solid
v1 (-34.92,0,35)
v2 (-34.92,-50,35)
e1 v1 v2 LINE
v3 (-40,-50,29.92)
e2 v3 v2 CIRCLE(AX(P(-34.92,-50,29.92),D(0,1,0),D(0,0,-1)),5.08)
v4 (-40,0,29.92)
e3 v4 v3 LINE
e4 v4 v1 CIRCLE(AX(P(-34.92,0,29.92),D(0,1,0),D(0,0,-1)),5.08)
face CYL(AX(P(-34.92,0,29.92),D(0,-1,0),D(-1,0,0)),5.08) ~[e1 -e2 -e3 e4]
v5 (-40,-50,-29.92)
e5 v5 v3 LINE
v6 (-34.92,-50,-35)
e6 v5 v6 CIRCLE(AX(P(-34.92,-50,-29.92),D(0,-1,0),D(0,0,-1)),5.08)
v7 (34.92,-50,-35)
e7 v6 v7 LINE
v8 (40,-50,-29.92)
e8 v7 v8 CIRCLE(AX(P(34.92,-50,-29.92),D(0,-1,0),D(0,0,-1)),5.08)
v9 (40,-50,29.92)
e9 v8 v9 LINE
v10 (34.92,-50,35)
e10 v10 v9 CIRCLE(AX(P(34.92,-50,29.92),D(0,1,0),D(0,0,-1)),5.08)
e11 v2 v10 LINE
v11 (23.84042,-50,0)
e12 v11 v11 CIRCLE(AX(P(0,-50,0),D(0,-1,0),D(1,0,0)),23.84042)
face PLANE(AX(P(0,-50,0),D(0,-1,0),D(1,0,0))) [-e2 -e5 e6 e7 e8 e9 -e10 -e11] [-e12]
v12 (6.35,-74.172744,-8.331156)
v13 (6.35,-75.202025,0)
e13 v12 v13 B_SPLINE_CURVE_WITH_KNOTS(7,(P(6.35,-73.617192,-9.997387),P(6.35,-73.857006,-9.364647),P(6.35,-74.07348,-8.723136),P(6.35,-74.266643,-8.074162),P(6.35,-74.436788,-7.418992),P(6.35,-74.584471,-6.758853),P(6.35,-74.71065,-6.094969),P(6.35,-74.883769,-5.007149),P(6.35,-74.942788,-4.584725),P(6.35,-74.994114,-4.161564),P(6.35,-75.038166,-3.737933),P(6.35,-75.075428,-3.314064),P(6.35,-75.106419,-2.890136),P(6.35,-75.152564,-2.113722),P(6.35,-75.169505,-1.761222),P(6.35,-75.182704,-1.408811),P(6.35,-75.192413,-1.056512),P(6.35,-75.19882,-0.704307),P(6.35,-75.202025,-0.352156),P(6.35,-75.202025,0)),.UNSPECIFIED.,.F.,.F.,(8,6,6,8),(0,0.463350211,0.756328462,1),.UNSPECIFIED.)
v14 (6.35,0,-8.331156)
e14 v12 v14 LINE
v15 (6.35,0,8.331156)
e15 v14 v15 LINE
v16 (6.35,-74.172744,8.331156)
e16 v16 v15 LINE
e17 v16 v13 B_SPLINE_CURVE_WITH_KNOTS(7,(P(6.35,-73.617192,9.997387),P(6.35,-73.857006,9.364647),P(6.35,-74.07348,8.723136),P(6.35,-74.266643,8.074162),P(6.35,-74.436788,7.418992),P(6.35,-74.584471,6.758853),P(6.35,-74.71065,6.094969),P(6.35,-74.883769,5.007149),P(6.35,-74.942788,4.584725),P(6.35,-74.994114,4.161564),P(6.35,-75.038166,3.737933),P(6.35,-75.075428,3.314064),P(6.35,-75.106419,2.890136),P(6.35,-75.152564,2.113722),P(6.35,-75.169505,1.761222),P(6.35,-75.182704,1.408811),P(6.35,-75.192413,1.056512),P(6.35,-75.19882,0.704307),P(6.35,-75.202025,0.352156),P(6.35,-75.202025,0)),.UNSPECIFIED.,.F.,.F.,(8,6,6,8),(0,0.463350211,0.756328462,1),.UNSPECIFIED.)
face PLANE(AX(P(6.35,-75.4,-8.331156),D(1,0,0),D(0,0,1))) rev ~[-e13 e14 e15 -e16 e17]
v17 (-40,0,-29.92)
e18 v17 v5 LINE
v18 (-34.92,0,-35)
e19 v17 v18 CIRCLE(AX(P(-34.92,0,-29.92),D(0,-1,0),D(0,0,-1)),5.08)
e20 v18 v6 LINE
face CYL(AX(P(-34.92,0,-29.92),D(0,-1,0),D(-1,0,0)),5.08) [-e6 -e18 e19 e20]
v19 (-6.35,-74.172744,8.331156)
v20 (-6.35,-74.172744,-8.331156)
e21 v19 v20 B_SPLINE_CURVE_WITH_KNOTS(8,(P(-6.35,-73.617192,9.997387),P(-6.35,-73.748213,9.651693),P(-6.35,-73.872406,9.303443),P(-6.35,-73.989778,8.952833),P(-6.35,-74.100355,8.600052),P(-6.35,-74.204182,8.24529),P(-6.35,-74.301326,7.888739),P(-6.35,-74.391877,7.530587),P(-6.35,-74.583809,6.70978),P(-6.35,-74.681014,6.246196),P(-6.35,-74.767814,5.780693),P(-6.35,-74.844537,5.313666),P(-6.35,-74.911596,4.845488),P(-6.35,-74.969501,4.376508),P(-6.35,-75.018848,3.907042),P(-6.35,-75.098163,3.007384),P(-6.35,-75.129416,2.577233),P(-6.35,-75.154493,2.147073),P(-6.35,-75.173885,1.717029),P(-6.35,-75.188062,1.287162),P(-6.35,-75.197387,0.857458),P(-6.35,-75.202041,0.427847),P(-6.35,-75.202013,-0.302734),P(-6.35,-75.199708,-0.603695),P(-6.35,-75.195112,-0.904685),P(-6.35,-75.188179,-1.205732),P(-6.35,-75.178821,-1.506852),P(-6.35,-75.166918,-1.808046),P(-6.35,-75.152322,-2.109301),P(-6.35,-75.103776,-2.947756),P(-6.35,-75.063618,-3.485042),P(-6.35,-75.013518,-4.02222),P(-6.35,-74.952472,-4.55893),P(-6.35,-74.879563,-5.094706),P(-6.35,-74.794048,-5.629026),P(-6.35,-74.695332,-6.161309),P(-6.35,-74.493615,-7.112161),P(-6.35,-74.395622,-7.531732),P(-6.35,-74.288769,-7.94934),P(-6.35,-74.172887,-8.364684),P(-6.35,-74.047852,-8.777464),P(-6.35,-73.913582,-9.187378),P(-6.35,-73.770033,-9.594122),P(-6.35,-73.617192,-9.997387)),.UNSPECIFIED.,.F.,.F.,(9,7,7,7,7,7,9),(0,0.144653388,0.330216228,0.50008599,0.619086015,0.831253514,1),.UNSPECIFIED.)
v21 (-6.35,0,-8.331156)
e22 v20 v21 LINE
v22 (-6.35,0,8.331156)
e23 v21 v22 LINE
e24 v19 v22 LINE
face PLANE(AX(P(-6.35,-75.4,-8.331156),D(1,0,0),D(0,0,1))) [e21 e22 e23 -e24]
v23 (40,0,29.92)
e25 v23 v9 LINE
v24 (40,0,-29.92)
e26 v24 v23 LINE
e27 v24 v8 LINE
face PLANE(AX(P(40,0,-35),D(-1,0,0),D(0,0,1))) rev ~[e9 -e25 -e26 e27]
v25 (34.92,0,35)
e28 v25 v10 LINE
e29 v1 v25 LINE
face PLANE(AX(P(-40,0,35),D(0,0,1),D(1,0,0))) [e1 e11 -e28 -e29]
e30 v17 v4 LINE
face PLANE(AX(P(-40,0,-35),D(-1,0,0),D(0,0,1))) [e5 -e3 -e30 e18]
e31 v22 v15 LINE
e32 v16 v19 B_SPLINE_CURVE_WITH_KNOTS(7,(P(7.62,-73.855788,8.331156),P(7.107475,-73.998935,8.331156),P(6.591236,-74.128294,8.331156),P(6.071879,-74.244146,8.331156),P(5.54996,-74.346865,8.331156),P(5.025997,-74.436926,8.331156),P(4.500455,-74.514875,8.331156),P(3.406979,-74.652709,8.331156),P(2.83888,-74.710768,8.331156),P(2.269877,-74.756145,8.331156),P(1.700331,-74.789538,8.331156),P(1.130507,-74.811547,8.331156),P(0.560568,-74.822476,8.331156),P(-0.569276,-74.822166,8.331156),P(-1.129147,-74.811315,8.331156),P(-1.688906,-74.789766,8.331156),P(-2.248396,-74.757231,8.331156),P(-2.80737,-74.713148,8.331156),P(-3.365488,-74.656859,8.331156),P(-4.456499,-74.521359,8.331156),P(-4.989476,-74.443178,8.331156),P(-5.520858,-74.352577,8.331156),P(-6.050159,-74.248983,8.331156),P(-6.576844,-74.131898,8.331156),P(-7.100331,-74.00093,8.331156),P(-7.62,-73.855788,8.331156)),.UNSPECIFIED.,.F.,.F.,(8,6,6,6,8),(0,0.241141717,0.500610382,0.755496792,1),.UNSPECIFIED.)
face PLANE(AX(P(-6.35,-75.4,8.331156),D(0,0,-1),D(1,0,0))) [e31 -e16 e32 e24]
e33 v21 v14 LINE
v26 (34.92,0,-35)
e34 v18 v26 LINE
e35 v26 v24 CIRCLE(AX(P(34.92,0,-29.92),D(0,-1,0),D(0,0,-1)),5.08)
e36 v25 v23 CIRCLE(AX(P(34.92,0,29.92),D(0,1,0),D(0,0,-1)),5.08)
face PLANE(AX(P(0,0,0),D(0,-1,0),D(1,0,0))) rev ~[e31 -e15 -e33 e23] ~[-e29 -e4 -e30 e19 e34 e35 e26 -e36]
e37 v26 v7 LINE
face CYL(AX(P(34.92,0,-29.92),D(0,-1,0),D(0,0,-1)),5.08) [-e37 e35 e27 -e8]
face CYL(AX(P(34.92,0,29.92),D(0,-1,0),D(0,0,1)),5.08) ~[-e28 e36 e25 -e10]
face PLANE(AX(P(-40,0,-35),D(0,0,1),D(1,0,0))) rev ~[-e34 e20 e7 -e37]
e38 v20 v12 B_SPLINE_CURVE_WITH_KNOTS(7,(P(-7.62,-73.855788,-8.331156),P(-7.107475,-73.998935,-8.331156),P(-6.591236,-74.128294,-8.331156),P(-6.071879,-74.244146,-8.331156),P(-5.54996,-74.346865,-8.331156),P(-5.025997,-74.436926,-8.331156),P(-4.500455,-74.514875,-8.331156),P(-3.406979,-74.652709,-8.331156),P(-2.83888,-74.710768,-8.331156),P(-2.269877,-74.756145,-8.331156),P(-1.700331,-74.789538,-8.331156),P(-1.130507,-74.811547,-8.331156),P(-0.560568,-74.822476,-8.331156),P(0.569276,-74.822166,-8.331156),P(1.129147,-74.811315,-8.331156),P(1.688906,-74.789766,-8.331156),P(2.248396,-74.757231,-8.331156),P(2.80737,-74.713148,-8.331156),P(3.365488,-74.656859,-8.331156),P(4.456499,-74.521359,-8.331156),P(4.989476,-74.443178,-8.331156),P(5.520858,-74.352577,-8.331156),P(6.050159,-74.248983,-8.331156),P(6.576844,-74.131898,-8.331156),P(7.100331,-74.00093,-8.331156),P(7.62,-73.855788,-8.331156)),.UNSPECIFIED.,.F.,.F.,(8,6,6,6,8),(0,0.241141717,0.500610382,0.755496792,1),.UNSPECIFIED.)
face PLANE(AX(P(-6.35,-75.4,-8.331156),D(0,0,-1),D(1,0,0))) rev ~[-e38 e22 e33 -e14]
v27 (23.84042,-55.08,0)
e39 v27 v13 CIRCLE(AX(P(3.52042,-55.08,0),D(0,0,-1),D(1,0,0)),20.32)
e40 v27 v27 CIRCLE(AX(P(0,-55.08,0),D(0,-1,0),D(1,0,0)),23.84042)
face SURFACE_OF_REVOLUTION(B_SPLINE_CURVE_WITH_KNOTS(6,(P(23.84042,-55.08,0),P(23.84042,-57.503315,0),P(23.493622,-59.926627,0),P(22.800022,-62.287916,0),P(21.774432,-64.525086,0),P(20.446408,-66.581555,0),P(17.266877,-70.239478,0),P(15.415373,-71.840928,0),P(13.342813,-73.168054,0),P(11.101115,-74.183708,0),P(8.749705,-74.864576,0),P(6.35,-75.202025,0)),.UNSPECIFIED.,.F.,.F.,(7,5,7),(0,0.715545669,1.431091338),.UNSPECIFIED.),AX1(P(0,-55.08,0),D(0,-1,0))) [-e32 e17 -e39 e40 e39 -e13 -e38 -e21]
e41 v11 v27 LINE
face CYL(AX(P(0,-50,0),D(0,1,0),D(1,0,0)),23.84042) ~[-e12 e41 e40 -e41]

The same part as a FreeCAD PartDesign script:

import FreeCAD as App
import Part
import Sketcher
from FreeCAD import Vector


def edges_at(feature, points):
    """Names of the edges that pass closest to the given points."""
    edges = feature.Shape.Edges
    near = lambda p: min(range(len(edges)), key=lambda i: edges[i].distToShape(Part.Vertex(*p))[0])
    return sorted({f"Edge{near(p) + 1}" for p in points})

doc = App.newDocument("Part")
body = doc.addObject("PartDesign::Body", "Body")

sketch1 = body.newObject("Sketcher::SketchObject", "Sketch")
sketch1.AttachmentSupport = (doc.getObject("XZ_Plane"), [""])
sketch1.MapMode = "FlatFace"
sketch1.addGeometry([
    Part.LineSegment(Vector(-40, 35, 0), Vector(-40, -35, 0)),
    Part.LineSegment(Vector(-40, -35, 0), Vector(40, -35, 0)),
    Part.LineSegment(Vector(40, -35, 0), Vector(40, 35, 0)),
    Part.LineSegment(Vector(40, 35, 0), Vector(-40, 35, 0)),
], False)
sketch1.addConstraint([
    Sketcher.Constraint("Coincident", 0, 2, 1, 1),
    Sketcher.Constraint("Coincident", 1, 2, 2, 1),
    Sketcher.Constraint("Coincident", 2, 2, 3, 1),
    Sketcher.Constraint("Coincident", 3, 2, 0, 1),
    Sketcher.Constraint("Vertical", 0),
    Sketcher.Constraint("Horizontal", 1),
    Sketcher.Constraint("Vertical", 2),
    Sketcher.Constraint("Horizontal", 3),
    Sketcher.Constraint("Symmetric", 0, 2, 2, 2, -1, 1),
    Sketcher.Constraint("DistanceX", 1, 1, 1, 2, 80.0),
    Sketcher.Constraint("DistanceY", 0, 2, 0, 1, 70.0),
])
pad1 = body.newObject("PartDesign::Pad", "Pad")
pad1.Profile = sketch1
pad1.Length = 50

sketch2 = body.newObject("Sketcher::SketchObject", "Sketch001")
sketch2.AttachmentSupport = (doc.getObject("XZ_Plane"), [""])
sketch2.MapMode = "FlatFace"
sketch2.AttachmentOffset = App.Placement(Vector(0, 0, 50), App.Rotation())
sketch2.addGeometry(Part.Circle(Vector(0, 0, 0), Vector(0, 0, 1), 24), False)
sketch2.addConstraint([
    Sketcher.Constraint("Coincident", 0, 3, -1, 1),
    Sketcher.Constraint("Diameter", 0, 47.68084),
])
pad2 = body.newObject("PartDesign::Pad", "Pad001")
pad2.Profile = sketch2
pad2.Length = 25.4
doc.recompute()

fillet = body.newObject("PartDesign::Fillet", "Fillet")
fillet.Base = (pad2, edges_at(pad2, [
    (40, -25, 35),
    (40, -25, -35),
    (-40, -25, 35),
    (-40, -25, -35),
]))
fillet.Radius = 5.08
doc.recompute()

fillet2 = body.newObject("PartDesign::Fillet", "Fillet001")
fillet2.Base = (fillet, edges_at(fillet, [(-23.84, -75.4, 0)]))
fillet2.Radius = 20.32

sketch3 = body.newObject("Sketcher::SketchObject", "Sketch002")
sketch3.AttachmentSupport = (doc.getObject("XZ_Plane"), [""])
sketch3.MapMode = "FlatFace"
sketch3.AttachmentOffset = App.Placement(Vector(0, 0, 75.4), App.Rotation())
sketch3.addGeometry([
    Part.LineSegment(Vector(-6, 8, 0), Vector(-6, -8, 0)),
    Part.LineSegment(Vector(-6, -8, 0), Vector(6, -8, 0)),
    Part.LineSegment(Vector(6, -8, 0), Vector(6, 8, 0)),
    Part.LineSegment(Vector(6, 8, 0), Vector(-6, 8, 0)),
], False)
sketch3.addConstraint([
    Sketcher.Constraint("Coincident", 0, 2, 1, 1),
    Sketcher.Constraint("Coincident", 1, 2, 2, 1),
    Sketcher.Constraint("Coincident", 2, 2, 3, 1),
    Sketcher.Constraint("Coincident", 3, 2, 0, 1),
    Sketcher.Constraint("Vertical", 0),
    Sketcher.Constraint("Horizontal", 1),
    Sketcher.Constraint("Vertical", 2),
    Sketcher.Constraint("Horizontal", 3),
    Sketcher.Constraint("Symmetric", 0, 2, 2, 2, -1, 1),
    Sketcher.Constraint("DistanceX", 1, 1, 1, 2, 12.7),
    Sketcher.Constraint("DistanceY", 0, 2, 0, 1, 16.662312),
])
pocket1 = body.newObject("PartDesign::Pocket", "Pocket")
pocket1.Profile = sketch3
pocket1.Type = "ThroughAll"

doc.recompute()
